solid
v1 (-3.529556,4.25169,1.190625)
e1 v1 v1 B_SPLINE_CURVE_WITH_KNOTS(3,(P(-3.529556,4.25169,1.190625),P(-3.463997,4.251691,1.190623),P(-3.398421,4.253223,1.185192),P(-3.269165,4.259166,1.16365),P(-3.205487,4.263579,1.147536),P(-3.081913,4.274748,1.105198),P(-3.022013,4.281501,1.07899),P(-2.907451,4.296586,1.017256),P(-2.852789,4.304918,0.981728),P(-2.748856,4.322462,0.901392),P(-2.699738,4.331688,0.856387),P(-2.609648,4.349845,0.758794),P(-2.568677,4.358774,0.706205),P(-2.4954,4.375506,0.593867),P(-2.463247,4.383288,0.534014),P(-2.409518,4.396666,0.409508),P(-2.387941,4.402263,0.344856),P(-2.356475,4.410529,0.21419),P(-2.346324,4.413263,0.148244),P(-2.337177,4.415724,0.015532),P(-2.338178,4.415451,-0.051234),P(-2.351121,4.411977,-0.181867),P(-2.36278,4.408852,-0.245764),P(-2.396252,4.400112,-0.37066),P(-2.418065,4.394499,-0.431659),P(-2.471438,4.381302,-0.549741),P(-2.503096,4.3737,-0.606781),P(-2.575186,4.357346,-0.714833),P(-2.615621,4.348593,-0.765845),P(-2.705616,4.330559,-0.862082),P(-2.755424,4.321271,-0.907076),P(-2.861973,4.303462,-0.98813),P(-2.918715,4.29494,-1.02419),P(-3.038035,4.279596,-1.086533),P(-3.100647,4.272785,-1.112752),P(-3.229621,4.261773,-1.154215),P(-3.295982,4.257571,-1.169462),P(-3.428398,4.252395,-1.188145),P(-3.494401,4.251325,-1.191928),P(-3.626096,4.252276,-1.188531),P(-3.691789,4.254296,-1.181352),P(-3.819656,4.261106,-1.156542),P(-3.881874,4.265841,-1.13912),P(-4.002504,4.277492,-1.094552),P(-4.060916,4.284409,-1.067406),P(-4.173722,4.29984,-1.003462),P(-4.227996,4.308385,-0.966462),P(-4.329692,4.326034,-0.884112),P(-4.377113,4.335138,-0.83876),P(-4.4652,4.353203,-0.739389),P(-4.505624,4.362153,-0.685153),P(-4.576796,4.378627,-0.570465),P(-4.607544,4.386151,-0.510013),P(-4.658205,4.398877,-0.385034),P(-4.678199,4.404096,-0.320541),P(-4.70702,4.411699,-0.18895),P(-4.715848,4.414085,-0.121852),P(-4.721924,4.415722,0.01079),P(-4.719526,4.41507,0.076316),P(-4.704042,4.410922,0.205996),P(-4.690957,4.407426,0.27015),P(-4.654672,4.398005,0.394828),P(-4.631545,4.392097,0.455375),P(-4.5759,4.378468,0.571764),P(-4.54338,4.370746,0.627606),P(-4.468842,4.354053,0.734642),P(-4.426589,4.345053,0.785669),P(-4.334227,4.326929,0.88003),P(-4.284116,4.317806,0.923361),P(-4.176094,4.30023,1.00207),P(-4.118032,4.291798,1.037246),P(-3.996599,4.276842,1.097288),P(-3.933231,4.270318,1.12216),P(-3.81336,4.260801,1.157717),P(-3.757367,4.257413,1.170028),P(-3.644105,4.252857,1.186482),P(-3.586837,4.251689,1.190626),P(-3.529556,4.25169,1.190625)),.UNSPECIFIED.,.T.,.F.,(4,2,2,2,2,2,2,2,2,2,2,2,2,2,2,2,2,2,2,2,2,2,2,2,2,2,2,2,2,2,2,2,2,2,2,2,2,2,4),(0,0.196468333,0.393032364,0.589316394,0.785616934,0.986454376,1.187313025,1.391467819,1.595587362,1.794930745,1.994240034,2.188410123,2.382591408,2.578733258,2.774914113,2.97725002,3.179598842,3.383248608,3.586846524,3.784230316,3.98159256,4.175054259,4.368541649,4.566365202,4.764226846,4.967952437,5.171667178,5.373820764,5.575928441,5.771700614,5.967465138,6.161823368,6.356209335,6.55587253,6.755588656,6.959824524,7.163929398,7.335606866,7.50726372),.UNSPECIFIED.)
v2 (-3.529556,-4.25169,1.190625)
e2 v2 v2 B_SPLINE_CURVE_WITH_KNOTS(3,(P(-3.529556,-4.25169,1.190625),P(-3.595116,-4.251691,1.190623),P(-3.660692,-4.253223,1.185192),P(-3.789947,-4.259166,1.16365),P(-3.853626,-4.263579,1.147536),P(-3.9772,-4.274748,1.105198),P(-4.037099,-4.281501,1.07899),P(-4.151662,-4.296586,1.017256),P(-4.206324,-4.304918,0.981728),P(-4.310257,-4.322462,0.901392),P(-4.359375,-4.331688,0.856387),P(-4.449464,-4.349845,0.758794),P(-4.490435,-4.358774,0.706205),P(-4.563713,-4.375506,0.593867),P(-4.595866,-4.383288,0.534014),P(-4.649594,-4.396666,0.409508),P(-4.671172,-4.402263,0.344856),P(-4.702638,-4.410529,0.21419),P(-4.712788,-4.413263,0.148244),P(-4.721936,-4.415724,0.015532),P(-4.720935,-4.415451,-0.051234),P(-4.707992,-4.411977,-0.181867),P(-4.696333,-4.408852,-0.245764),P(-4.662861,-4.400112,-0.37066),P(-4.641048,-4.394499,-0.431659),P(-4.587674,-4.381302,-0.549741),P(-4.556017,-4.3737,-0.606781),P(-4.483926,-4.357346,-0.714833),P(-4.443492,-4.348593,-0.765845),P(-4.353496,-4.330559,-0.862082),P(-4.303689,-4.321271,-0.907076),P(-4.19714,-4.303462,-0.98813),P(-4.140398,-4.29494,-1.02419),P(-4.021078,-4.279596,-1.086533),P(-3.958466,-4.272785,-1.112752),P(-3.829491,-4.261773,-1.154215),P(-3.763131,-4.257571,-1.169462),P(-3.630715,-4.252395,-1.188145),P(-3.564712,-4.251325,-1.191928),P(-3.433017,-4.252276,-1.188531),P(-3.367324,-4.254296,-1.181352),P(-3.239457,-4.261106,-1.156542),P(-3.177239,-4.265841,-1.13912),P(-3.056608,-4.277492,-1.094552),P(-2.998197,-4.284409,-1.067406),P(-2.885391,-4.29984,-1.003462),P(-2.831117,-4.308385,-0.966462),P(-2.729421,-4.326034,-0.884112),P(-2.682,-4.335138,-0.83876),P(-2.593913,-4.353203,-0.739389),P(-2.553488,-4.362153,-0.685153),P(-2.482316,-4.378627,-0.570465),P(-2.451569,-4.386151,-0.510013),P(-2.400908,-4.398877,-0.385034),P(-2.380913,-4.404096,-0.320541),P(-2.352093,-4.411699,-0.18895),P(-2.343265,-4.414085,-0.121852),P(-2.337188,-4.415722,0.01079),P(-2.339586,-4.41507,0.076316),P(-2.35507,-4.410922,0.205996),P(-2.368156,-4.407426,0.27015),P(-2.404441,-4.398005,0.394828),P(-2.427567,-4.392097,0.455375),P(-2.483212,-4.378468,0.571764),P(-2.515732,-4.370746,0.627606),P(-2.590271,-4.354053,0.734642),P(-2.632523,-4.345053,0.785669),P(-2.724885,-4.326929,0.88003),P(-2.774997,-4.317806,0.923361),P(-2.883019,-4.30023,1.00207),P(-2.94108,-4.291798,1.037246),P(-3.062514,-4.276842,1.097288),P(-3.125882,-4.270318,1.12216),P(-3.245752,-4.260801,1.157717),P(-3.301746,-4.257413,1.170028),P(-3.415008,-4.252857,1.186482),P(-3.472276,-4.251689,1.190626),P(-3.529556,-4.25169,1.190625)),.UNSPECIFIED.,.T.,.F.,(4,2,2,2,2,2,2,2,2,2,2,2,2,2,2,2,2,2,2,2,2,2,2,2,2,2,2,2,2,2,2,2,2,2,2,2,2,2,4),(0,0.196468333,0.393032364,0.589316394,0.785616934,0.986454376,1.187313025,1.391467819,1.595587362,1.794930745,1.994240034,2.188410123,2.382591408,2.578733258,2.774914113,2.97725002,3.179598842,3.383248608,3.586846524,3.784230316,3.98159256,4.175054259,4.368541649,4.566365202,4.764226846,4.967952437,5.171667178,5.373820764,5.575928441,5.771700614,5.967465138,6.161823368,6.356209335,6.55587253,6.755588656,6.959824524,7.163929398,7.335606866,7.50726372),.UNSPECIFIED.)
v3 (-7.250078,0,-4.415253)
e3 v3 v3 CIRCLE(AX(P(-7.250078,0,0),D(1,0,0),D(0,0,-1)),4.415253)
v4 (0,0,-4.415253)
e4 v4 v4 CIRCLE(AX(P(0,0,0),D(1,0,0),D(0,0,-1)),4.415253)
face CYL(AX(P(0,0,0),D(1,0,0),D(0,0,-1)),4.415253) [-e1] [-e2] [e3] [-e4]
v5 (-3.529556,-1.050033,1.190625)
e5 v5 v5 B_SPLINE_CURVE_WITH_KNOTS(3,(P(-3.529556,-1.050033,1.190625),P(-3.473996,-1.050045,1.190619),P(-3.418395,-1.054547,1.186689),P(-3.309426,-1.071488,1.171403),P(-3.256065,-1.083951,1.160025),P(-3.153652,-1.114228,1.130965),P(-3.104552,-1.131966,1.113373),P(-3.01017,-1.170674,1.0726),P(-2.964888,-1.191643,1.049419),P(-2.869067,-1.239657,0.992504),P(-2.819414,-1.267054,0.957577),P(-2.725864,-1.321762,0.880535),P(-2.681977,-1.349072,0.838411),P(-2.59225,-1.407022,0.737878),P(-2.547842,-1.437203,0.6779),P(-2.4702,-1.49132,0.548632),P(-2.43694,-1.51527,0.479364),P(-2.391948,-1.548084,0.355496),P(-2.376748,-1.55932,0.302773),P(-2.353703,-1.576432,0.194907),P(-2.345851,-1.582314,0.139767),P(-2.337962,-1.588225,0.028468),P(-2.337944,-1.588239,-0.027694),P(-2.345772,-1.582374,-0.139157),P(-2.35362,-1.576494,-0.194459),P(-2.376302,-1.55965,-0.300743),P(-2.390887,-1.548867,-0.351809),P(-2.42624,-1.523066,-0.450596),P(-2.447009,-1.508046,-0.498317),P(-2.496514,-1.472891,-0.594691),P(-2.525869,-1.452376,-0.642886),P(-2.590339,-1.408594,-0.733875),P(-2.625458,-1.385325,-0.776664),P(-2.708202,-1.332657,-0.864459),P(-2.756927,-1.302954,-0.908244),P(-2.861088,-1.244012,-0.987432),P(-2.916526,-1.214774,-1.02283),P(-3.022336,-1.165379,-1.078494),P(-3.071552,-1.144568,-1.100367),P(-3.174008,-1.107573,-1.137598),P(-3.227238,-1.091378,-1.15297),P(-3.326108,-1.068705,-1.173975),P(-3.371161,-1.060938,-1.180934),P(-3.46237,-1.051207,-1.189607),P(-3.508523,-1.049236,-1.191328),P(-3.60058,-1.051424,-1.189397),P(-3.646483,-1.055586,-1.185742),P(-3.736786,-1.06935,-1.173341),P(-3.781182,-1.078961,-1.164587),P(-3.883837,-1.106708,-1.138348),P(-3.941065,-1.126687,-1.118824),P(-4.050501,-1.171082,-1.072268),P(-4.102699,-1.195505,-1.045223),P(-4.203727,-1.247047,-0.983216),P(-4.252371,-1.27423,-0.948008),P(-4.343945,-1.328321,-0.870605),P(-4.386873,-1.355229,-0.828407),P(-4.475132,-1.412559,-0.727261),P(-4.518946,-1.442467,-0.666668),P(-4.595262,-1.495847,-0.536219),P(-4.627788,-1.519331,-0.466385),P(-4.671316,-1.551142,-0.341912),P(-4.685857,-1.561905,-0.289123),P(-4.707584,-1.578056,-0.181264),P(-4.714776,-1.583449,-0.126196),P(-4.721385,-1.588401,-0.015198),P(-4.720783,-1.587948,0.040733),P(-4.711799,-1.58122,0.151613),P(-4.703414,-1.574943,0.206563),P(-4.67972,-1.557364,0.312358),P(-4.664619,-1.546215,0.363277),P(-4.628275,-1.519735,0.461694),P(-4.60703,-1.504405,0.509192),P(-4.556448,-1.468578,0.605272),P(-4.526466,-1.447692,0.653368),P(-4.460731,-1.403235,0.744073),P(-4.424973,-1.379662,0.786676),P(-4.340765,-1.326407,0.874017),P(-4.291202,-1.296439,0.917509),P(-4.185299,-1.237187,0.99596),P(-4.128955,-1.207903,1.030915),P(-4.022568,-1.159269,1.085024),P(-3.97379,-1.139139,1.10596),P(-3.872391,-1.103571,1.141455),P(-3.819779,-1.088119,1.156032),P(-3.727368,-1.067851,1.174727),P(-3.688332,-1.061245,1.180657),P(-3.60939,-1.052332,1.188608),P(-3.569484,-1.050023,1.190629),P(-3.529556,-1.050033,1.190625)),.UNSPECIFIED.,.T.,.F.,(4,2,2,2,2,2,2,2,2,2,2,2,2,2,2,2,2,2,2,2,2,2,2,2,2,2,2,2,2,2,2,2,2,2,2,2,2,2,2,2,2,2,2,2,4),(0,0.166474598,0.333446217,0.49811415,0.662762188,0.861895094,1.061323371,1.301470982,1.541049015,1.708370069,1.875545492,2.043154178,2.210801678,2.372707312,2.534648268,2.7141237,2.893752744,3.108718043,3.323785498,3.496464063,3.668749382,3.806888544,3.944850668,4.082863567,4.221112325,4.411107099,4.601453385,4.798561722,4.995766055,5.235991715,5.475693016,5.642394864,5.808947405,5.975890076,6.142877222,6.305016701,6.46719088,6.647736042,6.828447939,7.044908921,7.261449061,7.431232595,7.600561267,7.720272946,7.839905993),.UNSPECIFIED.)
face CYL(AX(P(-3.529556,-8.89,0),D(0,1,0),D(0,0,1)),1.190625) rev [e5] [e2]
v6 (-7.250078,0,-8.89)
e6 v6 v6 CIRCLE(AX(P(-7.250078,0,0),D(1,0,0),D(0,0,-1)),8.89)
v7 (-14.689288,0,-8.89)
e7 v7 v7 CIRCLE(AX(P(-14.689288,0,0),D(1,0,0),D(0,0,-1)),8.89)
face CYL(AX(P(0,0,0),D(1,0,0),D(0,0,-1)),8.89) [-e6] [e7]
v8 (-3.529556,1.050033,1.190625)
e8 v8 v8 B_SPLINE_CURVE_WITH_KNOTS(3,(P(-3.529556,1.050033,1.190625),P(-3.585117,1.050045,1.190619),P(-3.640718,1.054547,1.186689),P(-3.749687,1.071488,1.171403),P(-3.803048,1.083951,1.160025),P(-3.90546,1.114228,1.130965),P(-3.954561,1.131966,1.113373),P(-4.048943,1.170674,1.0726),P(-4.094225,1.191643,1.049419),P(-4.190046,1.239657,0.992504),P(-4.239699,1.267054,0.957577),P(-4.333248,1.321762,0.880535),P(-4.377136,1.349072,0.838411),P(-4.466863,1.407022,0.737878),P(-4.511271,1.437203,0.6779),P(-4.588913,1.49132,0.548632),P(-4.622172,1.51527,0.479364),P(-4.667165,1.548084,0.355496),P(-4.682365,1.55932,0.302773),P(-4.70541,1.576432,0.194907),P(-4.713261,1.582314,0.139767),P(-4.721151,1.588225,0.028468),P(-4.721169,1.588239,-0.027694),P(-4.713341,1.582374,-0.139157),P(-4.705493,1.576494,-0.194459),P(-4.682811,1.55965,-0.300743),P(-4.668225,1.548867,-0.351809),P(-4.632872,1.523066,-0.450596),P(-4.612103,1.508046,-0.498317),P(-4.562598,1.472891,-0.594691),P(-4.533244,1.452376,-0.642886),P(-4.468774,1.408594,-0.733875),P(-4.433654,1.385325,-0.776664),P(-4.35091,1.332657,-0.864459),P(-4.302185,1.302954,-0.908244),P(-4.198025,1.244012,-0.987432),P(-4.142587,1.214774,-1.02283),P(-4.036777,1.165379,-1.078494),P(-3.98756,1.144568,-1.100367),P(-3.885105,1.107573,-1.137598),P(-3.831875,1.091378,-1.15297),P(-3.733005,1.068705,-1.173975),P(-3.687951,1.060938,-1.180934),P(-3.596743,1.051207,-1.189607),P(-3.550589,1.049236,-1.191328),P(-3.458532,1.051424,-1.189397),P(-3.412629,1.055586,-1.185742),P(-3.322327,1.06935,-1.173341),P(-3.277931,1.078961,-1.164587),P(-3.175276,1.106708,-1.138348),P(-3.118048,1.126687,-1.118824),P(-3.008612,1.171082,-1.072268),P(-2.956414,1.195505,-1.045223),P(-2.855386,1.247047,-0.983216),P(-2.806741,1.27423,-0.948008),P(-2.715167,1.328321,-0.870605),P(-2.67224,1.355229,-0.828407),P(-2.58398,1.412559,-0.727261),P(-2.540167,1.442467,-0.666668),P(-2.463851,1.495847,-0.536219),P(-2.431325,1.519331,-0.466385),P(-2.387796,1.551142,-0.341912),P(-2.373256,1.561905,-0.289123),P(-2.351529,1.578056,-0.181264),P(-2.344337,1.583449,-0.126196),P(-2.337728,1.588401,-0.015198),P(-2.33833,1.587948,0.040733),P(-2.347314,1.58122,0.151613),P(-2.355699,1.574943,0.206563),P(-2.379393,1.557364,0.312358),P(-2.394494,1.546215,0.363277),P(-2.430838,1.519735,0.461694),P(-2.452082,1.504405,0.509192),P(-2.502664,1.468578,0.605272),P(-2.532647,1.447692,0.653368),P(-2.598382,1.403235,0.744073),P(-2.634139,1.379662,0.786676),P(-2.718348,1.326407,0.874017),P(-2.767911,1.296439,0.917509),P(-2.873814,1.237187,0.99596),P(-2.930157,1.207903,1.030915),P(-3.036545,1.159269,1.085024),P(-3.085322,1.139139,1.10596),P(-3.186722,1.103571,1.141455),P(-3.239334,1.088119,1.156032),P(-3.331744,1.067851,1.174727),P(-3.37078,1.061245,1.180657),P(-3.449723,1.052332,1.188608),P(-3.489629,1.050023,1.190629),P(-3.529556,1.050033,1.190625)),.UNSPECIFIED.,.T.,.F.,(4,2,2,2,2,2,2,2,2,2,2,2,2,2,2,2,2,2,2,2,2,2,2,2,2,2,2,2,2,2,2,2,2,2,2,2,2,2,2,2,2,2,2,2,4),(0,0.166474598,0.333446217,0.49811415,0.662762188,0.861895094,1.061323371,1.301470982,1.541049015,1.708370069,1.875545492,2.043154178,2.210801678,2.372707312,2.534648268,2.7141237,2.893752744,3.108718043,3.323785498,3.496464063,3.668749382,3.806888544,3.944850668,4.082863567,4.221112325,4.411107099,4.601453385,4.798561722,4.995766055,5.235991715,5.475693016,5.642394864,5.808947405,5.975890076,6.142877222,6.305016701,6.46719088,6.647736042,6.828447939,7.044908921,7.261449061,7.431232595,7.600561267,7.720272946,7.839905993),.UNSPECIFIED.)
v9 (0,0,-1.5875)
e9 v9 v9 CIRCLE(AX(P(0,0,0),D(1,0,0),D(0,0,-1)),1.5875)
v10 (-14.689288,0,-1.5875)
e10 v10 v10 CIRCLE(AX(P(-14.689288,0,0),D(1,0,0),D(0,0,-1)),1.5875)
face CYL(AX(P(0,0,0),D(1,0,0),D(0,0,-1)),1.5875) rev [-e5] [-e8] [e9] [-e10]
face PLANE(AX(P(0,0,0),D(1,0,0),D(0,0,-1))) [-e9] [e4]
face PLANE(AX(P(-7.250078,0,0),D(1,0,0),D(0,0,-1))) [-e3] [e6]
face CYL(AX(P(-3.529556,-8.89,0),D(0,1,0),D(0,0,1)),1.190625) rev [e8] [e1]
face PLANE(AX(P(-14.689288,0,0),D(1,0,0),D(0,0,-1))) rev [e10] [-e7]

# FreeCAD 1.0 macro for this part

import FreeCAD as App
import Part
import Sketcher
Q = App.Units.Quantity


def add_polygon(sketch, points):
    """Adds a closed chain of lines whose ends are joined by coincident constraints."""
    first, n = sketch.GeometryCount, len(points)
    for a, b in zip(points, points[1:] + points[:1]):
        sketch.addGeometry(Part.LineSegment(App.Vector(*a, 0), App.Vector(*b, 0)), False)
    for i in range(n):
        sketch.addConstraint(Sketcher.Constraint("Coincident", first + i, 2, first + (i + 1) % n, 1))

doc = App.newDocument("Part")
body = doc.addObject("PartDesign::Body", "Body")

sketch1 = doc.addObject("Sketcher::SketchObject", "Sketch")
body.addObject(sketch1)
sketch1.AttachmentSupport = (doc.XY_Plane, [""])
sketch1.MapMode = "FlatFace"
add_polygon(sketch1, [(-7.250078, 1.5875), (0, 1.5875), (0, 4.415253), (-7.250078, 4.415253), (-7.250078, 8.89), (-14.689288, 8.89), (-14.689288, 1.5875)])
sketch1.addConstraint(Sketcher.Constraint("Horizontal", 0))
sketch1.addConstraint(Sketcher.Constraint("Vertical", 1))
sketch1.addConstraint(Sketcher.Constraint("Horizontal", 2))
sketch1.addConstraint(Sketcher.Constraint("Vertical", 3))
sketch1.addConstraint(Sketcher.Constraint("Horizontal", 4))
sketch1.addConstraint(Sketcher.Constraint("Vertical", 5))
sketch1.addConstraint(Sketcher.Constraint("Horizontal", 6))
sketch1.addConstraint(Sketcher.Constraint("PointOnObject", 0, 2, -2))
sketch1.addConstraint(Sketcher.Constraint("Vertical", 3, 2, 6, 2))
sketch1.addConstraint(Sketcher.Constraint("DistanceY", -1, 1, 3, 2, Q("0.35 in")))
sketch1.addConstraint(Sketcher.Constraint("DistanceY", 5, 2, 5, 1, Q("0.2875 in")))
sketch1.addConstraint(Sketcher.Constraint("DistanceX", 4, 2, 4, 1, Q("7.43921 mm")))
sketch1.addConstraint(Sketcher.Constraint("DistanceX", 0, 1, 0, 2, Q("7.250078 mm")))
sketch1.addConstraint(Sketcher.Constraint("DistanceY", 1, 1, 1, 2, Q("2.827753 mm")))
revolution = doc.addObject("PartDesign::Revolution", "Revolution")
body.addObject(revolution)
revolution.Profile = sketch1
revolution.ReferenceAxis = (sketch1, ["H_Axis"])
revolution.Angle = 360

sketch2 = doc.addObject("Sketcher::SketchObject", "Sketch001")
body.addObject(sketch2)
sketch2.AttachmentSupport = (doc.XZ_Plane, [""])
sketch2.MapMode = "FlatFace"
sketch2.addGeometry(Part.Circle(App.Vector(-3.529556, 0, 0), App.Vector(0, 0, 1), 1.190625), False)
sketch2.addConstraint(Sketcher.Constraint("PointOnObject", 0, 3, -1))
sketch2.addConstraint(Sketcher.Constraint("Diameter", 0, Q("0.09375 in")))
sketch2.addConstraint(Sketcher.Constraint("DistanceX", 0, 3, -1, 1, Q("3.529556 mm")))
pocket1 = doc.addObject("PartDesign::Pocket", "Pocket")
body.addObject(pocket1)
pocket1.Profile = sketch2
pocket1.Type = "ThroughAll"
pocket1.Midplane = True

doc.recompute()
